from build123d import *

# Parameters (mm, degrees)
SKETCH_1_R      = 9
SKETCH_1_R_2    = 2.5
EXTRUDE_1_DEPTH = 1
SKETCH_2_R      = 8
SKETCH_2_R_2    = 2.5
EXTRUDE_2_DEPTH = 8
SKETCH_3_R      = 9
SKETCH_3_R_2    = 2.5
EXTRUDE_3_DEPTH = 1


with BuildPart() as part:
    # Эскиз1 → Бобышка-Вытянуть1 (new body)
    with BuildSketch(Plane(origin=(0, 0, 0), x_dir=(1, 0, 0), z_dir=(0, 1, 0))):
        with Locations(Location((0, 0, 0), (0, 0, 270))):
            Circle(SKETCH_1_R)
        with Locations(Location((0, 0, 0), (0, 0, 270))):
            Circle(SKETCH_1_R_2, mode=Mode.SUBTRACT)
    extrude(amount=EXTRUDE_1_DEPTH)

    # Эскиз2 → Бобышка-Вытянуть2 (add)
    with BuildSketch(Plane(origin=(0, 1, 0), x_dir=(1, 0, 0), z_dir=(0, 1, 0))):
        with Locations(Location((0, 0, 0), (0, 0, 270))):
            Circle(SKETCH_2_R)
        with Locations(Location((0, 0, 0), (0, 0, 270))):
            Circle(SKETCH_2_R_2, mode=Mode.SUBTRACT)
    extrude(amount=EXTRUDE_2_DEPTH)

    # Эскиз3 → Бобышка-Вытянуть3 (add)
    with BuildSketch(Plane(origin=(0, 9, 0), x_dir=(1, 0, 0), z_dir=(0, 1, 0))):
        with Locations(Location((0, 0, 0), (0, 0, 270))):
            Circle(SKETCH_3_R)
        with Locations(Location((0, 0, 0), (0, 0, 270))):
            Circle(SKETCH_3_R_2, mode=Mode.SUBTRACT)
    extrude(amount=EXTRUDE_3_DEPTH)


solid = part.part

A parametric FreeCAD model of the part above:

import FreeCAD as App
import Part
import Sketcher
Q = App.Units.Quantity

doc = App.newDocument("Part")
body = doc.addObject("PartDesign::Body", "Body")

# Sketch on XZ plane
sketch1 = doc.addObject("Sketcher::SketchObject", "Sketch")
body.addObject(sketch1)
sketch1.AttachmentSupport = (doc.XZ_Plane, [""])
sketch1.MapMode = "FlatFace"
sketch1.addGeometry([
    Part.Circle(App.Vector(0, 0, 0), App.Vector(0, 0, 1), 9),
    Part.Circle(App.Vector(0, 0, 0), App.Vector(0, 0, 1), 2.5),
], False)
sketch1.addConstraint([
    Sketcher.Constraint("Coincident", 0, 3, -1, 1),
    Sketcher.Constraint("Coincident", 1, 3, -1, 1),
    Sketcher.Constraint("Diameter", 0, Q("18 mm")),
    Sketcher.Constraint("Diameter", 1, Q("5 mm")),
])
pad1 = doc.addObject("PartDesign::Pad", "Pad")
body.addObject(pad1)
pad1.Profile = sketch1
pad1.Length = 1
pad1.Reversed = True

# Sketch on XZ plane
sketch2 = doc.addObject("Sketcher::SketchObject", "Sketch001")
body.addObject(sketch2)
sketch2.AttachmentSupport = (doc.XZ_Plane, [""])
sketch2.MapMode = "FlatFace"
sketch2.AttachmentOffset = App.Placement(App.Vector(0, 0, -1), App.Rotation())
sketch2.addGeometry([
    Part.Circle(App.Vector(0, 0, 0), App.Vector(0, 0, 1), 8),
    Part.Circle(App.Vector(0, 0, 0), App.Vector(0, 0, 1), 2.5),
], False)
sketch2.addConstraint([
    Sketcher.Constraint("Coincident", 0, 3, -1, 1),
    Sketcher.Constraint("Coincident", 1, 3, -1, 1),
    Sketcher.Constraint("Diameter", 0, Q("16 mm")),
    Sketcher.Constraint("Diameter", 1, Q("5 mm")),
])
pad2 = doc.addObject("PartDesign::Pad", "Pad001")
body.addObject(pad2)
pad2.Profile = sketch2
pad2.Length = 8
pad2.Reversed = True

# Sketch on XZ plane
sketch3 = doc.addObject("Sketcher::SketchObject", "Sketch002")
body.addObject(sketch3)
sketch3.AttachmentSupport = (doc.XZ_Plane, [""])
sketch3.MapMode = "FlatFace"
sketch3.AttachmentOffset = App.Placement(App.Vector(0, 0, -9), App.Rotation())
sketch3.addGeometry([
    Part.Circle(App.Vector(0, 0, 0), App.Vector(0, 0, 1), 9),
    Part.Circle(App.Vector(0, 0, 0), App.Vector(0, 0, 1), 2.5),
], False)
sketch3.addConstraint([
    Sketcher.Constraint("Coincident", 0, 3, -1, 1),
    Sketcher.Constraint("Coincident", 1, 3, -1, 1),
    Sketcher.Constraint("Diameter", 0, Q("18 mm")),
    Sketcher.Constraint("Diameter", 1, Q("5 mm")),
])
pad3 = doc.addObject("PartDesign::Pad", "Pad002")
body.addObject(pad3)
pad3.Profile = sketch3
pad3.Length = 1
pad3.Reversed = True

doc.recompute()
